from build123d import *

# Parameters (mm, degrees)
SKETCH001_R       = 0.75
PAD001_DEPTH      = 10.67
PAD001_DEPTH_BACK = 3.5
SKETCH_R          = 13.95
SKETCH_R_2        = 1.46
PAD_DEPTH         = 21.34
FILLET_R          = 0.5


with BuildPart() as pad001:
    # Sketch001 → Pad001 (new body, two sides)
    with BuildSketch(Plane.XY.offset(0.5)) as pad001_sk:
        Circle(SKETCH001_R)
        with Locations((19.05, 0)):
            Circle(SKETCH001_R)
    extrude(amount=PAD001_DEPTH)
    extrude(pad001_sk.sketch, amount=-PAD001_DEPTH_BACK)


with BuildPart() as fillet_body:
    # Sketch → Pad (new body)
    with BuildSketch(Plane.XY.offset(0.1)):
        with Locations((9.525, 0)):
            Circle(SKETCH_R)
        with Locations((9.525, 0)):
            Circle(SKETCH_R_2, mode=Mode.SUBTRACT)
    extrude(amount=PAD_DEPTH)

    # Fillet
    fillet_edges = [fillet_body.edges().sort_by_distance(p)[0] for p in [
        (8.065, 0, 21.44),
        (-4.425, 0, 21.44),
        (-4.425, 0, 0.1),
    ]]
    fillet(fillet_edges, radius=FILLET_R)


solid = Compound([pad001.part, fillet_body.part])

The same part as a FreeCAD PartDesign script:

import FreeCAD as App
import Part
import Sketcher
from FreeCAD import Vector
Q = App.Units.Quantity


def edges_at(feature, points):
    """Names of the edges that pass closest to the given points."""
    edges = feature.Shape.Edges
    near = lambda p: min(range(len(edges)), key=lambda i: edges[i].distToShape(Part.Vertex(*p))[0])
    return sorted({f"Edge{near(p) + 1}" for p in points})

doc = App.newDocument("Part")
body = doc.addObject("PartDesign::Body", "Body")
body.AllowCompound = True

sketch1 = body.newObject("Sketcher::SketchObject", "Sketch")
sketch1.AttachmentSupport = (doc.getObject("XY_Plane"), [""])
sketch1.MapMode = "FlatFace"
sketch1.AttachmentOffset = App.Placement(Vector(0, 0, 0.5), App.Rotation())
sketch1.addGeometry(Part.Circle(Vector(0, 0, 0), Vector(0, 0, 1), 0.75), False)
sketch1.addGeometry(Part.Circle(Vector(19.05, 0, 0), Vector(0, 0, 1), 0.75), False)
sketch1.addConstraint(Sketcher.Constraint("Coincident", 0, 3, -1, 1))
sketch1.addConstraint(Sketcher.Constraint("Equal", 0, 1))
sketch1.addConstraint(Sketcher.Constraint("PointOnObject", 1, 3, -1))
sketch1.addConstraint(Sketcher.Constraint("Diameter", 0, Q("1.5 mm")))
sketch1.addConstraint(Sketcher.Constraint("DistanceX", -1, 1, 1, 3, Q("19.05 mm")))
pad1 = body.newObject("PartDesign::Pad", "Pad")
pad1.Profile = sketch1
pad1.Type = "TwoLengths"
pad1.Length = 10.67
pad1.Length2 = 3.5
body2 = doc.addObject("PartDesign::Body", "Body001")

sketch2 = body2.newObject("Sketcher::SketchObject", "Sketch001")
sketch2.AttachmentSupport = (doc.getObject("XY_Plane001"), [""])
sketch2.MapMode = "FlatFace"
sketch2.AttachmentOffset = App.Placement(Vector(0, 0, 0.1), App.Rotation())
sketch2.addGeometry(Part.Circle(Vector(9.525, 0, 0), Vector(0, 0, 1), 13.95), False)
sketch2.addGeometry(Part.Circle(Vector(9.525, 0, 0), Vector(0, 0, 1), 1.46), False)
sketch2.addConstraint(Sketcher.Constraint("Coincident", 1, 3, 0, 3))
sketch2.addConstraint(Sketcher.Constraint("PointOnObject", 0, 3, -1))
sketch2.addConstraint(Sketcher.Constraint("Diameter", 0, Q("27.9 mm")))
sketch2.addConstraint(Sketcher.Constraint("Diameter", 1, Q("2.92 mm")))
sketch2.addConstraint(Sketcher.Constraint("DistanceX", -1, 1, 0, 3, Q("9.525 mm")))
pad2 = body2.newObject("PartDesign::Pad", "Pad001")
pad2.Profile = sketch2
pad2.Length = 21.34
doc.recompute()

fillet = body2.newObject("PartDesign::Fillet", "Fillet")
fillet.Base = (pad2, edges_at(pad2, [(8.065, 0, 21.44), (-4.425, 0, 21.44), (-4.425, 0, 0.1)]))
fillet.Radius = 0.5

doc.recompute()
